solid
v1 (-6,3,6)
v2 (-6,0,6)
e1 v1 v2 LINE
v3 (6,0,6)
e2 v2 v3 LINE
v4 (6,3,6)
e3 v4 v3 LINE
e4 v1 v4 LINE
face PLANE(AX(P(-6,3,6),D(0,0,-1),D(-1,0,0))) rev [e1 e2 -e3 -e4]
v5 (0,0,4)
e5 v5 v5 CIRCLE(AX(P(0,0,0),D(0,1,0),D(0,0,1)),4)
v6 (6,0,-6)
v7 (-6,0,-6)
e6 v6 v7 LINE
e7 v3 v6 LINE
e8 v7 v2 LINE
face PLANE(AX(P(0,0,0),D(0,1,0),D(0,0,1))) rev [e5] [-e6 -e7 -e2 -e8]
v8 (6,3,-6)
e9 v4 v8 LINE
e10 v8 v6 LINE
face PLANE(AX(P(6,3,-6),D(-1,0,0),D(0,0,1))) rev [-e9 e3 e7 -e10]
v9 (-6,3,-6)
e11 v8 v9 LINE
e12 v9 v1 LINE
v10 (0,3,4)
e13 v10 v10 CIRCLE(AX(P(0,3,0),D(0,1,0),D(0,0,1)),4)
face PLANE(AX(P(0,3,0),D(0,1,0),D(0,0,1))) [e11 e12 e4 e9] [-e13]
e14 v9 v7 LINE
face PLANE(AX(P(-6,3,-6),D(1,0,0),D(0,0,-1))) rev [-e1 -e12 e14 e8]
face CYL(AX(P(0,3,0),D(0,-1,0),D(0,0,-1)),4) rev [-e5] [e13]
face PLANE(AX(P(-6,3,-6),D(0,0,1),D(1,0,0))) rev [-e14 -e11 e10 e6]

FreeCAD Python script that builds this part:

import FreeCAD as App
import Part
import Sketcher

V = App.Vector
Q = App.Units.Quantity


def add_polygon(sketch, points):
    """Adds a closed chain of lines whose ends are joined by coincident constraints."""
    first, n = sketch.GeometryCount, len(points)
    for a, b in zip(points, points[1:] + points[:1]):
        sketch.addGeometry(Part.LineSegment(App.Vector(*a, 0), App.Vector(*b, 0)), False)
    for i in range(n):
        sketch.addConstraint(Sketcher.Constraint("Coincident", first + i, 2, first + (i + 1) % n, 1))

doc = App.newDocument("Part")
params = doc.addObject("Spreadsheet::Sheet", "Params")
for row, (alias, value) in enumerate([
    ("sketch1_diameter", "8 mm"),
    ("sketch1_width", "12 mm"),
    ("pad1_length", "3 mm"),
], start=1):
    params.set(f"A{row}", alias)
    params.set(f"B{row}", "=" + value)
    params.setAlias(f"B{row}", alias)

body = doc.addObject("PartDesign::Body", "Body")

# Sketch on XZ plane
sketch1 = doc.addObject("Sketcher::SketchObject", "Sketch")
body.addObject(sketch1)
sketch1.AttachmentSupport = (doc.XZ_Plane, [""])
sketch1.MapMode = "FlatFace"
add_polygon(sketch1, [(-6, -6), (-6, 6), (6, 6), (6, -6)])  # lines 0-3
sketch1.addGeometry(Part.Circle(V(0, 0, 0), V(0, 0, 1), 4), False)  # 4
sketch1.addConstraint([
    Sketcher.Constraint("Vertical", 0),
    Sketcher.Constraint("Horizontal", 1),
    Sketcher.Constraint("Vertical", 2),
    Sketcher.Constraint("Horizontal", 3),
    Sketcher.Constraint("Coincident", 4, 3, -1, 1),
    Sketcher.Constraint("Symmetric", 0, 2, 2, 2, -1, 1),
    Sketcher.Constraint("Equal", 3, 0),
    Sketcher.Constraint("Diameter", 4, Q("8 mm")),
    Sketcher.Constraint("DistanceX", 1, 1, 1, 2, Q("12 mm")),
])
sketch1.setExpression("Constraints[11]", "Params.sketch1_diameter")
sketch1.setExpression("Constraints[12]", "Params.sketch1_width")
pad1 = doc.addObject("PartDesign::Pad", "Pad")
body.addObject(pad1)
pad1.Profile = sketch1
pad1.setExpression("Length", "Params.pad1_length")
pad1.Reversed = True

doc.recompute()
